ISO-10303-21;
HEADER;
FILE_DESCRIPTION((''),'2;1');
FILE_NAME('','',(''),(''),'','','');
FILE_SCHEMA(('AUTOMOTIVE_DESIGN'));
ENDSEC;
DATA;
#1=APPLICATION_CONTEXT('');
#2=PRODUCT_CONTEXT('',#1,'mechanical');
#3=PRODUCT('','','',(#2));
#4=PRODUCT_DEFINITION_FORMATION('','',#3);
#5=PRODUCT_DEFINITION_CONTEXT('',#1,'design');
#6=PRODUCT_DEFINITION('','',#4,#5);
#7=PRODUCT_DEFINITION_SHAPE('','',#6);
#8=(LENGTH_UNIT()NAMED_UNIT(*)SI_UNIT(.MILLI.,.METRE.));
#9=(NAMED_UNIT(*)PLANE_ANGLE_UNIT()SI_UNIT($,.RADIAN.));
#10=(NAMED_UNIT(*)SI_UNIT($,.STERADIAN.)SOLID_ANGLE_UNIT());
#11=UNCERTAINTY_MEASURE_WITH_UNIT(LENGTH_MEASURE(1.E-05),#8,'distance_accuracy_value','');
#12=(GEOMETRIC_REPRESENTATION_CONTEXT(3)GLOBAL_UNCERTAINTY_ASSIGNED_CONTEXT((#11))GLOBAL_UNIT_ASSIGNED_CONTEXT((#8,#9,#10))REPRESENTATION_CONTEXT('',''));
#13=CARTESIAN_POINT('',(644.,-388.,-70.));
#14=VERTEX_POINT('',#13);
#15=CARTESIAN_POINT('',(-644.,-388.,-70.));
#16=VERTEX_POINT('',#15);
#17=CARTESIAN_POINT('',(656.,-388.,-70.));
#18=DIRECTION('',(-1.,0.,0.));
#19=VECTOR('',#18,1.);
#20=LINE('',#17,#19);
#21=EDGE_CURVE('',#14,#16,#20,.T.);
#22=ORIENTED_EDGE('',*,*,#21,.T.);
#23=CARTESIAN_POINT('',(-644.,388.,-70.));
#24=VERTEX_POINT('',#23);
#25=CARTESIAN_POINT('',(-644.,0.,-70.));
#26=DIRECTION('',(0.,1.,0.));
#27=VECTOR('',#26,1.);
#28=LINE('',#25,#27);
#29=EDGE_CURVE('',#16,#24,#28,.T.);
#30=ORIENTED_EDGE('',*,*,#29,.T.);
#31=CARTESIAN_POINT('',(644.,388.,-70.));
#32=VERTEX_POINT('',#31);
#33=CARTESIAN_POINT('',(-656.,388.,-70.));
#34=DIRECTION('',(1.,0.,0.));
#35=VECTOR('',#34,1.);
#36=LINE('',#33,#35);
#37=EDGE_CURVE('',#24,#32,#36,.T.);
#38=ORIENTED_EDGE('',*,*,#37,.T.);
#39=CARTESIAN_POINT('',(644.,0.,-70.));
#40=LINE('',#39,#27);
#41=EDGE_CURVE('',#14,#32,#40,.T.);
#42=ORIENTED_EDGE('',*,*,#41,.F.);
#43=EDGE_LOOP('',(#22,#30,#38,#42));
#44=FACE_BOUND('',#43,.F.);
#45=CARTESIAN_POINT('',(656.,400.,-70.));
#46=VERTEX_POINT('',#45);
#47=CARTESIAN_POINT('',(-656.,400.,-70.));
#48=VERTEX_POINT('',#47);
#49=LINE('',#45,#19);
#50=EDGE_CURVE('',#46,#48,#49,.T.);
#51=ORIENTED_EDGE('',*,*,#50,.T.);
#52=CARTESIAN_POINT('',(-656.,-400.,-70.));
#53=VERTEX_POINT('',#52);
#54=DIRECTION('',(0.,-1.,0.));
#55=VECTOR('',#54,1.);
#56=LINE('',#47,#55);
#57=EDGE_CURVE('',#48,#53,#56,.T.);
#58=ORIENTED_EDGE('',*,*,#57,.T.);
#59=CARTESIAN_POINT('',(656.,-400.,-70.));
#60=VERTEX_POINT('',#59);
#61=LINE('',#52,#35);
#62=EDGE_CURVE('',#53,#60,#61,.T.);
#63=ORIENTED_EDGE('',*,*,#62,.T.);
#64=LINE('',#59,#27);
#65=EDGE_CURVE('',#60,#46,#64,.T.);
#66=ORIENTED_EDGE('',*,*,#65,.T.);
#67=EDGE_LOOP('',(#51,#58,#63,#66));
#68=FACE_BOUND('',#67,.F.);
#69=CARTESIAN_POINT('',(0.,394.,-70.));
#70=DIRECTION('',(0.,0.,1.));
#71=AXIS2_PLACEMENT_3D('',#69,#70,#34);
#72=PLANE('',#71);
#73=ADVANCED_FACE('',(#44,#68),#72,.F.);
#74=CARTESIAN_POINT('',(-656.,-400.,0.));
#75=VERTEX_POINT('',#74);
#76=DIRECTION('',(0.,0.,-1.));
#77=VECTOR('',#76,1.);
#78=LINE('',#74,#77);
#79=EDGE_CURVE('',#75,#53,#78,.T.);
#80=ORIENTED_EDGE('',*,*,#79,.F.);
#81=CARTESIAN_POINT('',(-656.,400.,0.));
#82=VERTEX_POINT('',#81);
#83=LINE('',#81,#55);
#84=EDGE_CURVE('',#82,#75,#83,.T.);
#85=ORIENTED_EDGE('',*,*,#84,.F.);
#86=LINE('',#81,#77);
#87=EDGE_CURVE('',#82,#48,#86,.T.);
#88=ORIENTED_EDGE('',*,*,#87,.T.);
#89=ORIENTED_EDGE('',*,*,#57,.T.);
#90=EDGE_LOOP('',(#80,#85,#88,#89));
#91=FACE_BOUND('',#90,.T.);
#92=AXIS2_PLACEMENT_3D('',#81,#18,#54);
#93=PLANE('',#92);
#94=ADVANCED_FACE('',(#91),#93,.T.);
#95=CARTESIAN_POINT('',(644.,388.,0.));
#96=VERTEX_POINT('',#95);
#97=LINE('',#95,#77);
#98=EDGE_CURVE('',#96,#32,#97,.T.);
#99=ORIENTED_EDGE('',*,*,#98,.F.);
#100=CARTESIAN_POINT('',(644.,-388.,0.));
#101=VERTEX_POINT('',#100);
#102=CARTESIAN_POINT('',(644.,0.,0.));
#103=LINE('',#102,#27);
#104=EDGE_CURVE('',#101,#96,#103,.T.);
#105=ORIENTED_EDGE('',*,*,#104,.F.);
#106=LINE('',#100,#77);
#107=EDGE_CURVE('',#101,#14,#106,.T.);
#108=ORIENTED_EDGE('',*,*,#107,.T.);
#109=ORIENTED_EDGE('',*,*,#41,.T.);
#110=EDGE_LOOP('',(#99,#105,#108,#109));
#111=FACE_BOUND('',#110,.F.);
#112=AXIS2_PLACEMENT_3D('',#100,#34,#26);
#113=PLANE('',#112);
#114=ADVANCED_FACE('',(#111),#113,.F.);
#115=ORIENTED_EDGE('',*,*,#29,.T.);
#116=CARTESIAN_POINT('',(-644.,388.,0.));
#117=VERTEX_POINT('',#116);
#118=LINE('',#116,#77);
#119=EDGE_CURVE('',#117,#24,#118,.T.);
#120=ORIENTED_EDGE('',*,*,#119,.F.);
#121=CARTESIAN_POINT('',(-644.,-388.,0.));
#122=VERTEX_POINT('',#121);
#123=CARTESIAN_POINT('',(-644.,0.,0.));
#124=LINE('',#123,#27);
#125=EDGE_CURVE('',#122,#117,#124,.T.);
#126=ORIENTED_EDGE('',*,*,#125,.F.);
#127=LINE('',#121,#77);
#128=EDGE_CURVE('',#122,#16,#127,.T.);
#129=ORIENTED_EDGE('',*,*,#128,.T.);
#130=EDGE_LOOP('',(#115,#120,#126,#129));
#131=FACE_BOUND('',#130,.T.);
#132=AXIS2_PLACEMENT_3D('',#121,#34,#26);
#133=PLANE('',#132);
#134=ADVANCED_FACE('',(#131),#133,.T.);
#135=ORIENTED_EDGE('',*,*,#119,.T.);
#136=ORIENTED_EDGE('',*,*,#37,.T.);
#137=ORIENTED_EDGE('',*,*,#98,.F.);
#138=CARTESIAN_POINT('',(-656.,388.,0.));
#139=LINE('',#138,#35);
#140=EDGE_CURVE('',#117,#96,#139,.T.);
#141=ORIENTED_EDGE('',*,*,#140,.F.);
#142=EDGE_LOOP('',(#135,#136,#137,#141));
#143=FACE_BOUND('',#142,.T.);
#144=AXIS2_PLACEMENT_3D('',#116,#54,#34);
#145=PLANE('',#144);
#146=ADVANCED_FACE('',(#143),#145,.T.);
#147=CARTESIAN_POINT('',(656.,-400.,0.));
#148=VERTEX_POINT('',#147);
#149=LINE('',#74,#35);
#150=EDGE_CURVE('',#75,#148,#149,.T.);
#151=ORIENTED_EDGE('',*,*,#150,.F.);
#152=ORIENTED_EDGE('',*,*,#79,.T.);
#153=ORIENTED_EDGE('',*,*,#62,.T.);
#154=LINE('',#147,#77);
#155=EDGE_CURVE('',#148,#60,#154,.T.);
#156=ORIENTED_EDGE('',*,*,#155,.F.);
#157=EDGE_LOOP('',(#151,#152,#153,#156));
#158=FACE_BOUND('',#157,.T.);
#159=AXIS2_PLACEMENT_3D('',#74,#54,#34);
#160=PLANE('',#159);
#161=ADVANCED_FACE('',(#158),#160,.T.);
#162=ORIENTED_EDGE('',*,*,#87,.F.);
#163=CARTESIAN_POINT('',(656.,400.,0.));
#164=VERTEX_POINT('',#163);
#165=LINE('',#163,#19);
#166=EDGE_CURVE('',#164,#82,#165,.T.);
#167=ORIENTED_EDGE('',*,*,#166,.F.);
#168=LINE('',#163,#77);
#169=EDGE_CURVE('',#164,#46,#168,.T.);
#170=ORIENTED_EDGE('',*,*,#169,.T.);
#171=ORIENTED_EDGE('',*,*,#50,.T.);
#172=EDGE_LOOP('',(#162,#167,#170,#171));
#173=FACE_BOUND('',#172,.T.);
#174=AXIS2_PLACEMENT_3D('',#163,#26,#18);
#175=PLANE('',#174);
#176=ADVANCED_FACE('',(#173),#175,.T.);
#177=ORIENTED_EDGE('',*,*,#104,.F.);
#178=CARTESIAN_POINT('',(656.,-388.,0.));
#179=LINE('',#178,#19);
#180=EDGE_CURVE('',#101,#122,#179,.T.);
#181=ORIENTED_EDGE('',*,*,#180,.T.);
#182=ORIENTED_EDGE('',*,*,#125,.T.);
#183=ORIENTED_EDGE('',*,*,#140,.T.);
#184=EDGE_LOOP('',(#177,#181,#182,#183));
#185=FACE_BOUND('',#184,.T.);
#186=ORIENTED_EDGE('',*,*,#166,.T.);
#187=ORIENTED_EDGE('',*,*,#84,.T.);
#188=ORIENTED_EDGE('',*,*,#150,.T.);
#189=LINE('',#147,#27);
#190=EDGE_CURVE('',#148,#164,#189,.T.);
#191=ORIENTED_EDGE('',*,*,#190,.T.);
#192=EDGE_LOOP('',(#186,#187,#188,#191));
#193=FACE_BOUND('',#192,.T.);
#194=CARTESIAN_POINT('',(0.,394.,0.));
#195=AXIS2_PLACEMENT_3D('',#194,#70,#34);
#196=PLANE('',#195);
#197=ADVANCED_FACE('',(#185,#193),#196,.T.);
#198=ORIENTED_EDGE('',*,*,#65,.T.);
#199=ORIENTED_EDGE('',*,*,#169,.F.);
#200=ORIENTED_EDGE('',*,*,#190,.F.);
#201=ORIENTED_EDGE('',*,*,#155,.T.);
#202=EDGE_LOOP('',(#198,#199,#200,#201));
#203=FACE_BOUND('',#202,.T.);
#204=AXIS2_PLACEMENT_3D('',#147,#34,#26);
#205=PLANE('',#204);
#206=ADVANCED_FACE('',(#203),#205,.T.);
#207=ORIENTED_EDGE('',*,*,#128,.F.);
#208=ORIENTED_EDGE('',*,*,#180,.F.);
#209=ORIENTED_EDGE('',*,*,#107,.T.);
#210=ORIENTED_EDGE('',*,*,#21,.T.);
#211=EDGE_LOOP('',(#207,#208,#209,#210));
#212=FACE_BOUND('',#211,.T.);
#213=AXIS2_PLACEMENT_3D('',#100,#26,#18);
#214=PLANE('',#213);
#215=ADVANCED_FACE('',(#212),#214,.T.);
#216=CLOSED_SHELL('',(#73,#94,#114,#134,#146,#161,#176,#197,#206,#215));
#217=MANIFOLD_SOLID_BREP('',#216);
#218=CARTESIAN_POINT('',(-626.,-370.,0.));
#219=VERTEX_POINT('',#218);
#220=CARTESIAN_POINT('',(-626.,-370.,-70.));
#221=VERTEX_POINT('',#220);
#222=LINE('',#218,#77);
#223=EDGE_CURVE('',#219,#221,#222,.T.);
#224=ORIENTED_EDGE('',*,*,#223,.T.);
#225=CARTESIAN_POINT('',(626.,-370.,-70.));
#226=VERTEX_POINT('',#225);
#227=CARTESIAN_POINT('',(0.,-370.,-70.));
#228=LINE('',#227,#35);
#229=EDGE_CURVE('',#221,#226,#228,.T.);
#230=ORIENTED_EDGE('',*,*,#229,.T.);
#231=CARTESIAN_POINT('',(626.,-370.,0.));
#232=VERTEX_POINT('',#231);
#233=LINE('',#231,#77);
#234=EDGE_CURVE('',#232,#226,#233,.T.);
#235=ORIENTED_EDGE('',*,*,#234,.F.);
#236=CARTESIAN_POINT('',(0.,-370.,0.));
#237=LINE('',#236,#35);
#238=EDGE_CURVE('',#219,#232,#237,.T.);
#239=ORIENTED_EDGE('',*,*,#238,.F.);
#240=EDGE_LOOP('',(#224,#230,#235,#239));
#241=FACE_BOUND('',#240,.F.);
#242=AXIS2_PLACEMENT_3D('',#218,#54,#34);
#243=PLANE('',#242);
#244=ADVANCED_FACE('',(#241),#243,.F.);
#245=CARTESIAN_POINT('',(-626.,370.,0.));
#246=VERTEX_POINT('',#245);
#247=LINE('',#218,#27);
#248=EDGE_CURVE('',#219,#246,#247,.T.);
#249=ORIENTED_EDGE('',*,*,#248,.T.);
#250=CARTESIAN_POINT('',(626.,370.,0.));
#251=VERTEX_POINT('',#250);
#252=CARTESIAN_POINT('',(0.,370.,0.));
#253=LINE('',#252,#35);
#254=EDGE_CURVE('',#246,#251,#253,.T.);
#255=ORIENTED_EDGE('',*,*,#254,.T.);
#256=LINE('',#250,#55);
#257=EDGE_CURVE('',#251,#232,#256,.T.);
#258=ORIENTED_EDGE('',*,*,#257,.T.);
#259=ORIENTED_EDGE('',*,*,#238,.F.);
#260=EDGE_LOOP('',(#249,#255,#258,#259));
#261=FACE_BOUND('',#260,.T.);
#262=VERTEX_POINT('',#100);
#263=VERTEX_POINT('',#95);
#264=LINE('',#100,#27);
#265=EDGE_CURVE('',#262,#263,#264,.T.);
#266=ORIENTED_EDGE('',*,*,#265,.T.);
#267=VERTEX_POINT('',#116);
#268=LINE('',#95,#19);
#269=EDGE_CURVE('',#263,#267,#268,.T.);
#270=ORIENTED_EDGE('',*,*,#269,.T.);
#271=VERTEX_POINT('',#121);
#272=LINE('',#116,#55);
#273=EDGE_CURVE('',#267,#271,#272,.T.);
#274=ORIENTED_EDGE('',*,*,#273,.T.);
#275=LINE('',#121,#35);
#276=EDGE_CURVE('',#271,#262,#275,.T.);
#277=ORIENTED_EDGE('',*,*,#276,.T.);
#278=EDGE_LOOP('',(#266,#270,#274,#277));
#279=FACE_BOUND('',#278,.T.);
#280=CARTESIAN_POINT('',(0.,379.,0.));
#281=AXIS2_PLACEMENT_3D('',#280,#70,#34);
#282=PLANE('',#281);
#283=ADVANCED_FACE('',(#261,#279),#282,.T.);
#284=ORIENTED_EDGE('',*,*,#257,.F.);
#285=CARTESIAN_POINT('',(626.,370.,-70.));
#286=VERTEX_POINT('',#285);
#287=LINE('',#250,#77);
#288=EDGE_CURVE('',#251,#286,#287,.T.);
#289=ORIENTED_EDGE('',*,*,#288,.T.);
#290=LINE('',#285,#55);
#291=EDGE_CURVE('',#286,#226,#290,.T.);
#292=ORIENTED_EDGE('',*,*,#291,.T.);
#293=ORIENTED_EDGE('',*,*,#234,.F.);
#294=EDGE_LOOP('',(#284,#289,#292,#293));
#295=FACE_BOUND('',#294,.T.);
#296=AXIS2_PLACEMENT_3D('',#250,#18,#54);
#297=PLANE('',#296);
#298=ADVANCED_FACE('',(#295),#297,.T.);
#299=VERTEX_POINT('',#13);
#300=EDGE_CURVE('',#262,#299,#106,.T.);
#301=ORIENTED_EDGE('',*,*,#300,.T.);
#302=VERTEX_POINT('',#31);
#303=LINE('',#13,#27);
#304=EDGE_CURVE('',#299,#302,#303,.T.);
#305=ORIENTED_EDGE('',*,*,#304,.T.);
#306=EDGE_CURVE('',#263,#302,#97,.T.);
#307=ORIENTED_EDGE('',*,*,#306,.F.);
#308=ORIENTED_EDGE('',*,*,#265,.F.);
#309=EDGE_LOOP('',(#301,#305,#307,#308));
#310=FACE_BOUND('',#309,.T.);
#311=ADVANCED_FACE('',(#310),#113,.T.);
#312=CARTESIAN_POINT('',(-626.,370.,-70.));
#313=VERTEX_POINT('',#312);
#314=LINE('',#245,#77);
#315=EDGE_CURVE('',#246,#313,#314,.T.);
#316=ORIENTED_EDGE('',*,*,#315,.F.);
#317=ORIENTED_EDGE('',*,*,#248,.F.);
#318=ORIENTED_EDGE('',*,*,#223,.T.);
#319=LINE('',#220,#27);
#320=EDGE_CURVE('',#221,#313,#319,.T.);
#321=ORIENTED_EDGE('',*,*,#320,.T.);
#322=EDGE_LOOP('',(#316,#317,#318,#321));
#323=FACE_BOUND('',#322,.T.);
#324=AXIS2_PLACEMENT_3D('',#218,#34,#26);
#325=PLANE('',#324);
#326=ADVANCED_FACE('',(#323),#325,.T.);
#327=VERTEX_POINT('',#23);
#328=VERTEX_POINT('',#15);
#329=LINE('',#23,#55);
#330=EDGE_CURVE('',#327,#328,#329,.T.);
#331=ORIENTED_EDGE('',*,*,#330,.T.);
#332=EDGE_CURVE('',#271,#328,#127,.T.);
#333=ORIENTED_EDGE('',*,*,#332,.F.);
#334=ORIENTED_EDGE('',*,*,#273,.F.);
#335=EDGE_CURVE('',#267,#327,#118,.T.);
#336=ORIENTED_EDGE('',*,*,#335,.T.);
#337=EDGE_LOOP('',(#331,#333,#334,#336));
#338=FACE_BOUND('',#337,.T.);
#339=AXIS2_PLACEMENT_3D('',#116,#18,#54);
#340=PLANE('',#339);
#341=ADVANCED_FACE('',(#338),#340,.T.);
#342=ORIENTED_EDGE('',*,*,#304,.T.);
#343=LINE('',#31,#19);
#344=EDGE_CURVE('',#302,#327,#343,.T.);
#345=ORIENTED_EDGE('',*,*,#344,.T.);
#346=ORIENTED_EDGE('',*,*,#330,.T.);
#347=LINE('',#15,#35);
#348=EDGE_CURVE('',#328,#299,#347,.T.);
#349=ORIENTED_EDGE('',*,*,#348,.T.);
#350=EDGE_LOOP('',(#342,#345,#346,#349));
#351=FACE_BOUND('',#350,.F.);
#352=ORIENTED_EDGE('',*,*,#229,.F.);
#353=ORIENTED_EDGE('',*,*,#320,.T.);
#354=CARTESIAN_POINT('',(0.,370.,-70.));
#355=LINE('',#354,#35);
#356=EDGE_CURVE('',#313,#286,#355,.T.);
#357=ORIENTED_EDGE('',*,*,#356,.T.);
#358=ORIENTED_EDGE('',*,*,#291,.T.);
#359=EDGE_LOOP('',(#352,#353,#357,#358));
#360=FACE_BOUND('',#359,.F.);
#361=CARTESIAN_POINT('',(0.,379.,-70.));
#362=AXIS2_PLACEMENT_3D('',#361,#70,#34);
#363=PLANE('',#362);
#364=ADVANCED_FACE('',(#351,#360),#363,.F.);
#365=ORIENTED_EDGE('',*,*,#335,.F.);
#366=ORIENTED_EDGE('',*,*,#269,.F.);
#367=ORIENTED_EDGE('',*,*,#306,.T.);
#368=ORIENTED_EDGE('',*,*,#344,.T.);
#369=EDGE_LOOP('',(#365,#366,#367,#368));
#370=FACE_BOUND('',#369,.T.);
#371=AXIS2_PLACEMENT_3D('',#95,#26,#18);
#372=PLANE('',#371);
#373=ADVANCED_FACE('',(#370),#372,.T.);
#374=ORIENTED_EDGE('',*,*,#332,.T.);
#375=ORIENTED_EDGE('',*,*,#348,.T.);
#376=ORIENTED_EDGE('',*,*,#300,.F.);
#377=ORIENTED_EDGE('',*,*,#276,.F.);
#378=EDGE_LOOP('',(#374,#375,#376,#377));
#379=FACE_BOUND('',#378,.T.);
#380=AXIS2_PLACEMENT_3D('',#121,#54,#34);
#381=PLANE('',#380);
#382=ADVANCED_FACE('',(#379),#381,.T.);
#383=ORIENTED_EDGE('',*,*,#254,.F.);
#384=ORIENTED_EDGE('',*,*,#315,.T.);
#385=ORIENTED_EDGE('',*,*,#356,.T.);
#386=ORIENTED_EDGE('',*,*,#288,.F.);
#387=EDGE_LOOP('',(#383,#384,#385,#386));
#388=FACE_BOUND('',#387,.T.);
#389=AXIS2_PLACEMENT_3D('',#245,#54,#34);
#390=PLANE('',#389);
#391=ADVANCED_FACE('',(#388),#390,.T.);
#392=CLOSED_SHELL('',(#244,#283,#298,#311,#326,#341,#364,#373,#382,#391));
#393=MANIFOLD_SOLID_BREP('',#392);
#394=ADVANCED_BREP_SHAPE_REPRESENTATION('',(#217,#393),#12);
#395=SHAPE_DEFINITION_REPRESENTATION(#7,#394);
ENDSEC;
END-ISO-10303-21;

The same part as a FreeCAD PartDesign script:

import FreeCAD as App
import Part
import Sketcher

doc = App.newDocument("Part")
params = doc.addObject("Spreadsheet::Sheet", "Params")
for row, (alias, value) in enumerate([
    ("sketch1_width", "1288 mm"),
    ("sketch1_width2", "1252 mm"),
    ("sketch1_height", "776 mm"),
    ("sketch1_height2", "740 mm"),
    ("pad1_length", "70 mm"),
    ("sketch2_width", "1312 mm"),
    ("sketch2_width2", "1288 mm"),
    ("sketch2_height", "800 mm"),
    ("sketch2_height2", "776 mm"),
    ("pad2_length", "70 mm"),
], start=1):
    params.set(f"A{row}", alias)
    params.set(f"B{row}", "=" + value)
    params.setAlias(f"B{row}", alias)

body = doc.addObject("PartDesign::Body", "Body")

sketch1 = body.newObject("Sketcher::SketchObject", "Sketch")
sketch1.AttachmentSupport = (doc.getObject("XY_Plane"), [""])
sketch1.MapMode = "FlatFace"
sketch1.addGeometry([
    Part.LineSegment(App.Vector(-644, 388, 0), App.Vector(-644, -388, 0)),
    Part.LineSegment(App.Vector(-644, -388, 0), App.Vector(644, -388, 0)),
    Part.LineSegment(App.Vector(644, -388, 0), App.Vector(644, 388, 0)),
    Part.LineSegment(App.Vector(644, 388, 0), App.Vector(-644, 388, 0)),
    Part.LineSegment(App.Vector(-626, 370, 0), App.Vector(626, 370, 0)),
    Part.LineSegment(App.Vector(626, 370, 0), App.Vector(626, -370, 0)),
    Part.LineSegment(App.Vector(626, -370, 0), App.Vector(-626, -370, 0)),
    Part.LineSegment(App.Vector(-626, -370, 0), App.Vector(-626, 370, 0)),
], False)
sketch1.addConstraint([
    Sketcher.Constraint("Coincident", 0, 2, 1, 1),
    Sketcher.Constraint("Coincident", 1, 2, 2, 1),
    Sketcher.Constraint("Coincident", 2, 2, 3, 1),
    Sketcher.Constraint("Coincident", 3, 2, 0, 1),
    Sketcher.Constraint("Coincident", 4, 2, 5, 1),
    Sketcher.Constraint("Coincident", 5, 2, 6, 1),
    Sketcher.Constraint("Coincident", 6, 2, 7, 1),
    Sketcher.Constraint("Coincident", 7, 2, 4, 1),
    Sketcher.Constraint("Vertical", 0),
    Sketcher.Constraint("Horizontal", 1),
    Sketcher.Constraint("Vertical", 2),
    Sketcher.Constraint("Horizontal", 3),
    Sketcher.Constraint("Horizontal", 4),
    Sketcher.Constraint("Vertical", 5),
    Sketcher.Constraint("Horizontal", 6),
    Sketcher.Constraint("Vertical", 7),
    Sketcher.Constraint("Symmetric", 0, 2, 2, 2, -1, 1),
    Sketcher.Constraint("Symmetric", 4, 2, 6, 2, -1, 1),
    Sketcher.Constraint("DistanceX", 1, 1, 1, 2, 1288.0),
    Sketcher.Constraint("DistanceX", 4, 1, 4, 2, 1252.0),
    Sketcher.Constraint("DistanceY", 0, 2, 0, 1, 776.0),
    Sketcher.Constraint("DistanceY", 5, 2, 5, 1, 740.0),
])
sketch1.setExpression("Constraints[18]", "Params.sketch1_width")
sketch1.setExpression("Constraints[19]", "Params.sketch1_width2")
sketch1.setExpression("Constraints[20]", "Params.sketch1_height")
sketch1.setExpression("Constraints[21]", "Params.sketch1_height2")
pad1 = body.newObject("PartDesign::Pad", "Pad")
pad1.Profile = sketch1
pad1.setExpression("Length", "Params.pad1_length")
pad1.Reversed = True
body2 = doc.addObject("PartDesign::Body", "Body001")

sketch2 = body2.newObject("Sketcher::SketchObject", "Sketch001")
sketch2.AttachmentSupport = (doc.getObject("XY_Plane001"), [""])
sketch2.MapMode = "FlatFace"
sketch2.addGeometry([
    Part.LineSegment(App.Vector(656, 400, 0), App.Vector(-656, 400, 0)),
    Part.LineSegment(App.Vector(-656, 400, 0), App.Vector(-656, -400, 0)),
    Part.LineSegment(App.Vector(-656, -400, 0), App.Vector(656, -400, 0)),
    Part.LineSegment(App.Vector(656, -400, 0), App.Vector(656, 400, 0)),
    Part.LineSegment(App.Vector(644, -388, 0), App.Vector(-644, -388, 0)),
    Part.LineSegment(App.Vector(-644, -388, 0), App.Vector(-644, 388, 0)),
    Part.LineSegment(App.Vector(-644, 388, 0), App.Vector(644, 388, 0)),
    Part.LineSegment(App.Vector(644, 388, 0), App.Vector(644, -388, 0)),
], False)
sketch2.addConstraint([
    Sketcher.Constraint("Coincident", 0, 2, 1, 1),
    Sketcher.Constraint("Coincident", 1, 2, 2, 1),
    Sketcher.Constraint("Coincident", 2, 2, 3, 1),
    Sketcher.Constraint("Coincident", 3, 2, 0, 1),
    Sketcher.Constraint("Coincident", 4, 2, 5, 1),
    Sketcher.Constraint("Coincident", 5, 2, 6, 1),
    Sketcher.Constraint("Coincident", 6, 2, 7, 1),
    Sketcher.Constraint("Coincident", 7, 2, 4, 1),
    Sketcher.Constraint("Horizontal", 0),
    Sketcher.Constraint("Vertical", 1),
    Sketcher.Constraint("Horizontal", 2),
    Sketcher.Constraint("Vertical", 3),
    Sketcher.Constraint("Horizontal", 4),
    Sketcher.Constraint("Vertical", 5),
    Sketcher.Constraint("Horizontal", 6),
    Sketcher.Constraint("Vertical", 7),
    Sketcher.Constraint("Symmetric", 0, 2, 2, 2, -1, 1),
    Sketcher.Constraint("Symmetric", 4, 2, 6, 2, -1, 1),
    Sketcher.Constraint("DistanceX", 0, 2, 0, 1, 1312.0),
    Sketcher.Constraint("DistanceX", 4, 2, 4, 1, 1288.0),
    Sketcher.Constraint("DistanceY", 1, 2, 1, 1, 800.0),
    Sketcher.Constraint("DistanceY", 5, 1, 5, 2, 776.0),
])
sketch2.setExpression("Constraints[18]", "Params.sketch2_width")
sketch2.setExpression("Constraints[19]", "Params.sketch2_width2")
sketch2.setExpression("Constraints[20]", "Params.sketch2_height")
sketch2.setExpression("Constraints[21]", "Params.sketch2_height2")
pad2 = body2.newObject("PartDesign::Pad", "Pad001")
pad2.Profile = sketch2
pad2.setExpression("Length", "Params.pad2_length")
pad2.Reversed = True

doc.recompute()
